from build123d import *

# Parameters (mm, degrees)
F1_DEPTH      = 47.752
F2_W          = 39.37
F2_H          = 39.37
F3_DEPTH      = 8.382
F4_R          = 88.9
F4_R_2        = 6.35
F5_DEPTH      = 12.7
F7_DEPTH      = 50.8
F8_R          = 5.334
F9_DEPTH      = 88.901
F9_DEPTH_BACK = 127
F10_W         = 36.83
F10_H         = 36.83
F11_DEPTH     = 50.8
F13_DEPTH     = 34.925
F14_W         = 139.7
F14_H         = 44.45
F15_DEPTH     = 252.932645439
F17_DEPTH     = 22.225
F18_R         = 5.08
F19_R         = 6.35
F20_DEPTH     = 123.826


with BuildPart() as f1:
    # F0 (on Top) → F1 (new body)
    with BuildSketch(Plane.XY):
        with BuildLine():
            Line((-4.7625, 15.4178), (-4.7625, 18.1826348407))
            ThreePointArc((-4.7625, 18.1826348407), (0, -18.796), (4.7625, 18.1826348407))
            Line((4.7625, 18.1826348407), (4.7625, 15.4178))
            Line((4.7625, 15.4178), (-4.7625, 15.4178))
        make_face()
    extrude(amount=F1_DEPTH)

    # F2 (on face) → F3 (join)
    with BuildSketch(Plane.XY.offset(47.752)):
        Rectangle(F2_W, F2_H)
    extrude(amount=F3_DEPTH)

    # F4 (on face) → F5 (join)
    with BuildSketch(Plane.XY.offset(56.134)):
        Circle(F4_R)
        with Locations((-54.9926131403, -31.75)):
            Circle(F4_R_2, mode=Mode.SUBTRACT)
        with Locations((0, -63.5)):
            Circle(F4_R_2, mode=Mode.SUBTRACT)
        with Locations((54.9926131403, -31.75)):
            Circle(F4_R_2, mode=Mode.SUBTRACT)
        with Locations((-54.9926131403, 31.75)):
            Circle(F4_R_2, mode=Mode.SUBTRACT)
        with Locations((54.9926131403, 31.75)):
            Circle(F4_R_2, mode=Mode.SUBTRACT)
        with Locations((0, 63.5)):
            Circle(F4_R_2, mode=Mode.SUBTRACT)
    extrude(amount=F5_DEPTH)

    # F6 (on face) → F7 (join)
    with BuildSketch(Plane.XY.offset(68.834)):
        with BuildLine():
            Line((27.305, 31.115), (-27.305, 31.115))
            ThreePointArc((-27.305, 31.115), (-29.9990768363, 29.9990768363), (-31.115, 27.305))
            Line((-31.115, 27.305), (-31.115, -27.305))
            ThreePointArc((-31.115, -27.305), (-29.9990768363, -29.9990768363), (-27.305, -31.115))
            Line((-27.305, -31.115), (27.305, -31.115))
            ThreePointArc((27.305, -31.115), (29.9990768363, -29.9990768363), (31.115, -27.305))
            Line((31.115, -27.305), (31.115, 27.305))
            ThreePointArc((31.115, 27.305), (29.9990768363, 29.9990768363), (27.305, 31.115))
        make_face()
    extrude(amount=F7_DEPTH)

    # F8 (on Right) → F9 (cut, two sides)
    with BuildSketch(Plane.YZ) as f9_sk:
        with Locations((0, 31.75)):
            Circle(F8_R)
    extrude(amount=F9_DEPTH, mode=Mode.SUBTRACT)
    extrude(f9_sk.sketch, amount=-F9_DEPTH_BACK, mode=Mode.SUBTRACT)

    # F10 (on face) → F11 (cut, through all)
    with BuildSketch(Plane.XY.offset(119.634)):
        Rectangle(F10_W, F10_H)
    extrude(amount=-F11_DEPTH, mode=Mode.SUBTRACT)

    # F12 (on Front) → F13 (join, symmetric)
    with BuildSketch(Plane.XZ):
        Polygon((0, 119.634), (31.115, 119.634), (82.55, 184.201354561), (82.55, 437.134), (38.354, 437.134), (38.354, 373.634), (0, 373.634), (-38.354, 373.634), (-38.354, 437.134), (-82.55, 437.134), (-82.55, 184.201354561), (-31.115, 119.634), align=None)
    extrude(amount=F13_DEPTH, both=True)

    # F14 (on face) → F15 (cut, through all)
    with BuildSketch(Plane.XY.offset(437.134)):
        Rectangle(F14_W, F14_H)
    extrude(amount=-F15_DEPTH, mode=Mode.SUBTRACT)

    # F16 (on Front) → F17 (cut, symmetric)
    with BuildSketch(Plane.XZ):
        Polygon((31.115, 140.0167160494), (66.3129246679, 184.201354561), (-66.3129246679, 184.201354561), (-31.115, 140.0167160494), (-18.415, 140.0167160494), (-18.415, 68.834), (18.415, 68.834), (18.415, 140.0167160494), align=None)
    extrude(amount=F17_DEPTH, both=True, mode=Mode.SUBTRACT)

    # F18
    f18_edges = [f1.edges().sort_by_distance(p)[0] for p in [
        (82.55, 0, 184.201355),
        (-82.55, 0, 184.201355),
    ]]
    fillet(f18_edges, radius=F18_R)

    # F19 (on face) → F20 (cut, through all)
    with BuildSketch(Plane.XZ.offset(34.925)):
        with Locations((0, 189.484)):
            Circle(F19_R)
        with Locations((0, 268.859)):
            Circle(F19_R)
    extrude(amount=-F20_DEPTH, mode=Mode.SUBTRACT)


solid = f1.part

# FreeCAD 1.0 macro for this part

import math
import FreeCAD as App
import Part
import Sketcher

V = App.Vector
Q = App.Units.Quantity


def edges_at(feature, points):
    """Names of the edges that pass closest to the given points."""
    edges = feature.Shape.Edges
    near = lambda p: min(range(len(edges)), key=lambda i: edges[i].distToShape(Part.Vertex(*p))[0])
    return sorted({f"Edge{near(p) + 1}" for p in points})

doc = App.newDocument("Part")
body = doc.addObject("PartDesign::Body", "Body")

sketch1 = body.newObject("Sketcher::SketchObject", "Sketch")
sketch1.AttachmentSupport = (doc.getObject("XY_Plane"), [""])
sketch1.MapMode = "FlatFace"
sketch1.addGeometry(Part.LineSegment(V(-4.8, 15.4, 0), V(-4.8, 18.2, 0)), False)
sketch1.addGeometry(Part.ArcOfCircle(Part.Circle(V(0, 0, 0), V(0, 0, 1), 18.8), math.radians(105), math.radians(435)), False)
sketch1.addGeometry(Part.LineSegment(V(4.8, 18.2, 0), V(4.8, 15.4, 0)), False)
sketch1.addGeometry(Part.LineSegment(V(4.8, 15.4, 0), V(-4.8, 15.4, 0)), False)
sketch1.addConstraint(Sketcher.Constraint("Coincident", 0, 2, 1, 1))
sketch1.addConstraint(Sketcher.Constraint("Coincident", 1, 2, 2, 1))
sketch1.addConstraint(Sketcher.Constraint("Coincident", 2, 2, 3, 1))
sketch1.addConstraint(Sketcher.Constraint("Coincident", 3, 2, 0, 1))
sketch1.addConstraint(Sketcher.Constraint("Vertical", 0))
sketch1.addConstraint(Sketcher.Constraint("Vertical", 2))
sketch1.addConstraint(Sketcher.Constraint("Horizontal", 3))
sketch1.addConstraint(Sketcher.Constraint("Coincident", 1, 3, -1, 1))
sketch1.addConstraint(Sketcher.Constraint("Horizontal", 0, 2, 1, 2))
sketch1.addConstraint(Sketcher.Constraint("Radius", 1, Q("0.74 in")))
sketch1.addConstraint(Sketcher.Constraint("DistanceX", 3, 2, 3, 1, Q("0.375 in")))
sketch1.addConstraint(Sketcher.Constraint("DistanceY", -1, 1, 2, 2, Q("0.607 in")))
pad1 = body.newObject("PartDesign::Pad", "Pad")
pad1.Profile = sketch1
pad1.Length = Q("1.88 in")

sketch2 = body.newObject("Sketcher::SketchObject", "Sketch001")
sketch2.AttachmentSupport = (doc.getObject("XY_Plane"), [""])
sketch2.MapMode = "FlatFace"
sketch2.AttachmentOffset = App.Placement(V(0, 0, 1.88 * 25.4), App.Rotation())
sketch2.addGeometry(Part.LineSegment(V(-20, 20, 0), V(-20, -20, 0)), False)
sketch2.addGeometry(Part.LineSegment(V(-20, -20, 0), V(20, -20, 0)), False)
sketch2.addGeometry(Part.LineSegment(V(20, -20, 0), V(20, 20, 0)), False)
sketch2.addGeometry(Part.LineSegment(V(20, 20, 0), V(-20, 20, 0)), False)
sketch2.addConstraint(Sketcher.Constraint("Coincident", 0, 2, 1, 1))
sketch2.addConstraint(Sketcher.Constraint("Coincident", 1, 2, 2, 1))
sketch2.addConstraint(Sketcher.Constraint("Coincident", 2, 2, 3, 1))
sketch2.addConstraint(Sketcher.Constraint("Coincident", 3, 2, 0, 1))
sketch2.addConstraint(Sketcher.Constraint("Vertical", 0))
sketch2.addConstraint(Sketcher.Constraint("Horizontal", 1))
sketch2.addConstraint(Sketcher.Constraint("Vertical", 2))
sketch2.addConstraint(Sketcher.Constraint("Horizontal", 3))
sketch2.addConstraint(Sketcher.Constraint("Symmetric", 0, 2, 2, 2, -1, 1))
sketch2.addConstraint(Sketcher.Constraint("Equal", 3, 0))
sketch2.addConstraint(Sketcher.Constraint("DistanceX", 1, 1, 1, 2, Q("1.55 in")))
pad2 = body.newObject("PartDesign::Pad", "Pad001")
pad2.Profile = sketch2
pad2.Length = Q("0.33 in")

sketch3 = body.newObject("Sketcher::SketchObject", "Sketch002")
sketch3.AttachmentSupport = (doc.getObject("XY_Plane"), [""])
sketch3.MapMode = "FlatFace"
sketch3.AttachmentOffset = App.Placement(V(0, 0, 2.21 * 25.4), App.Rotation())
sketch3.addGeometry(Part.Circle(V(0, 0, 0), V(0, 0, 1), 89), False)
sketch3.addGeometry(Part.Circle(V(-55, -32, 0), V(0, 0, 1), 6), False)
sketch3.addGeometry(Part.Circle(V(0, -64, 0), V(0, 0, 1), 6), False)
sketch3.addGeometry(Part.Circle(V(55, -32, 0), V(0, 0, 1), 6), False)
sketch3.addGeometry(Part.Circle(V(-55, 32, 0), V(0, 0, 1), 6), False)
sketch3.addGeometry(Part.Circle(V(55, 32, 0), V(0, 0, 1), 6), False)
sketch3.addGeometry(Part.Circle(V(0, 64, 0), V(0, 0, 1), 6), False)
sketch3.addConstraint(Sketcher.Constraint("Coincident", 0, 3, -1, 1))
sketch3.addConstraint(Sketcher.Constraint("Equal", 1, 2))
sketch3.addConstraint(Sketcher.Constraint("Equal", 2, 3))
sketch3.addConstraint(Sketcher.Constraint("Equal", 3, 4))
sketch3.addConstraint(Sketcher.Constraint("Equal", 4, 5))
sketch3.addConstraint(Sketcher.Constraint("Equal", 5, 6))
sketch3.addConstraint(Sketcher.Constraint("Symmetric", 3, 3, 4, 3, -1, 1))
sketch3.addConstraint(Sketcher.Constraint("Symmetric", 1, 3, 5, 3, -1, 1))
sketch3.addConstraint(Sketcher.Constraint("Symmetric", 2, 3, 6, 3, -1, 1))
sketch3.addConstraint(Sketcher.Constraint("Symmetric", 1, 3, 3, 3, -2))
sketch3.addConstraint(Sketcher.Constraint("PointOnObject", 2, 3, -2))
sketch3.addConstraint(Sketcher.Constraint("Diameter", 0, Q("7 in")))
sketch3.addConstraint(Sketcher.Constraint("Diameter", 1, Q("0.5 in")))
sketch3.addConstraint(Sketcher.Constraint("DistanceY", 2, 3, -1, 1, Q("2.5 in")))
sketch3.addConstraint(Sketcher.Constraint("DistanceY", 1, 3, 4, 3, Q("2.5 in")))
sketch3.addConstraint(Sketcher.Constraint("DistanceX", 1, 3, -1, 1, 54.992613))
pad3 = body.newObject("PartDesign::Pad", "Pad002")
pad3.Profile = sketch3
pad3.Length = Q("0.5 in")

sketch4 = body.newObject("Sketcher::SketchObject", "Sketch003")
sketch4.AttachmentSupport = (doc.getObject("XY_Plane"), [""])
sketch4.MapMode = "FlatFace"
sketch4.AttachmentOffset = App.Placement(V(0, 0, 2.71 * 25.4), App.Rotation())
sketch4.addGeometry(Part.LineSegment(V(27.3, 31.1, 0), V(-27.3, 31.1, 0)), False)
sketch4.addGeometry(Part.ArcOfCircle(Part.Circle(V(-27.3, 27.3, 0), V(0, 0, 1), 3.8), math.radians(90), math.radians(180)), False)
sketch4.addGeometry(Part.LineSegment(V(-31.1, 27.3, 0), V(-31.1, -27.3, 0)), False)
sketch4.addGeometry(Part.ArcOfCircle(Part.Circle(V(-27.3, -27.3, 0), V(0, 0, 1), 3.8), math.radians(180), math.radians(270)), False)
sketch4.addGeometry(Part.LineSegment(V(-27.3, -31.1, 0), V(27.3, -31.1, 0)), False)
sketch4.addGeometry(Part.ArcOfCircle(Part.Circle(V(27.3, -27.3, 0), V(0, 0, 1), 3.8), math.radians(-90), math.radians(0)), False)
sketch4.addGeometry(Part.LineSegment(V(31.1, -27.3, 0), V(31.1, 27.3, 0)), False)
sketch4.addGeometry(Part.ArcOfCircle(Part.Circle(V(27.3, 27.3, 0), V(0, 0, 1), 3.8), math.radians(0), math.radians(90)), False)
sketch4.addConstraint(Sketcher.Constraint("Tangent", 0, 2, 1, 1))
sketch4.addConstraint(Sketcher.Constraint("Tangent", 1, 2, 2, 1))
sketch4.addConstraint(Sketcher.Constraint("Tangent", 2, 2, 3, 1))
sketch4.addConstraint(Sketcher.Constraint("Tangent", 3, 2, 4, 1))
sketch4.addConstraint(Sketcher.Constraint("Tangent", 4, 2, 5, 1))
sketch4.addConstraint(Sketcher.Constraint("Tangent", 5, 2, 6, 1))
sketch4.addConstraint(Sketcher.Constraint("Tangent", 6, 2, 7, 1))
sketch4.addConstraint(Sketcher.Constraint("Tangent", 7, 2, 0, 1))
sketch4.addConstraint(Sketcher.Constraint("Horizontal", 0))
sketch4.addConstraint(Sketcher.Constraint("Vertical", 2))
sketch4.addConstraint(Sketcher.Constraint("Horizontal", 4))
sketch4.addConstraint(Sketcher.Constraint("Vertical", 6))
sketch4.addConstraint(Sketcher.Constraint("Equal", 1, 3))
sketch4.addConstraint(Sketcher.Constraint("Equal", 3, 5))
sketch4.addConstraint(Sketcher.Constraint("Equal", 5, 7))
sketch4.addConstraint(Sketcher.Constraint("Symmetric", 1, 3, 5, 3, -1, 1))
sketch4.addConstraint(Sketcher.Constraint("Equal", 4, 2))
sketch4.addConstraint(Sketcher.Constraint("Radius", 1, Q("0.15 in")))
sketch4.addConstraint(Sketcher.Constraint("DistanceX", 0, 2, 0, 1, Q("2.15 in")))
pad4 = body.newObject("PartDesign::Pad", "Pad003")
pad4.Profile = sketch4
pad4.Length = Q("2 in")

sketch5 = body.newObject("Sketcher::SketchObject", "Sketch004")
sketch5.AttachmentSupport = (doc.getObject("YZ_Plane"), [""])
sketch5.MapMode = "FlatFace"
sketch5.addGeometry(Part.Circle(V(0, 32, 0), V(0, 0, 1), 5), False)
sketch5.addConstraint(Sketcher.Constraint("PointOnObject", 0, 3, -2))
sketch5.addConstraint(Sketcher.Constraint("Diameter", 0, Q("0.42 in")))
sketch5.addConstraint(Sketcher.Constraint("DistanceY", -1, 1, 0, 3, Q("1.25 in")))
pocket1 = body.newObject("PartDesign::Pocket", "Pocket")
pocket1.Profile = sketch5
pocket1.Type = "ThroughAll"
pocket1.Midplane = True

sketch6 = body.newObject("Sketcher::SketchObject", "Sketch005")
sketch6.AttachmentSupport = (doc.getObject("XY_Plane"), [""])
sketch6.MapMode = "FlatFace"
sketch6.AttachmentOffset = App.Placement(V(0, 0, 4.71 * 25.4), App.Rotation())
sketch6.addGeometry(Part.LineSegment(V(-18, 18, 0), V(-18, -18, 0)), False)
sketch6.addGeometry(Part.LineSegment(V(-18, -18, 0), V(18, -18, 0)), False)
sketch6.addGeometry(Part.LineSegment(V(18, -18, 0), V(18, 18, 0)), False)
sketch6.addGeometry(Part.LineSegment(V(18, 18, 0), V(-18, 18, 0)), False)
sketch6.addConstraint(Sketcher.Constraint("Coincident", 0, 2, 1, 1))
sketch6.addConstraint(Sketcher.Constraint("Coincident", 1, 2, 2, 1))
sketch6.addConstraint(Sketcher.Constraint("Coincident", 2, 2, 3, 1))
sketch6.addConstraint(Sketcher.Constraint("Coincident", 3, 2, 0, 1))
sketch6.addConstraint(Sketcher.Constraint("Vertical", 0))
sketch6.addConstraint(Sketcher.Constraint("Horizontal", 1))
sketch6.addConstraint(Sketcher.Constraint("Vertical", 2))
sketch6.addConstraint(Sketcher.Constraint("Horizontal", 3))
sketch6.addConstraint(Sketcher.Constraint("Symmetric", 0, 2, 2, 2, -1, 1))
sketch6.addConstraint(Sketcher.Constraint("Equal", 3, 0))
sketch6.addConstraint(Sketcher.Constraint("DistanceX", 1, 1, 1, 2, Q("1.45 in")))
pocket2 = body.newObject("PartDesign::Pocket", "Pocket001")
pocket2.Profile = sketch6
pocket2.Length = Q("2 in")

sketch7 = body.newObject("Sketcher::SketchObject", "Sketch006")
sketch7.AttachmentSupport = (doc.getObject("XZ_Plane"), [""])
sketch7.MapMode = "FlatFace"
sketch7.addGeometry(Part.LineSegment(V(31, 120, 0), V(83, 184, 0)), False)
sketch7.addGeometry(Part.LineSegment(V(83, 184, 0), V(83, 437, 0)), False)
sketch7.addGeometry(Part.LineSegment(V(83, 437, 0), V(38, 437, 0)), False)
sketch7.addGeometry(Part.LineSegment(V(38, 437, 0), V(38, 374, 0)), False)
sketch7.addGeometry(Part.LineSegment(V(38, 374, 0), V(-38, 374, 0)), False)
sketch7.addGeometry(Part.LineSegment(V(-38, 374, 0), V(-38, 437, 0)), False)
sketch7.addGeometry(Part.LineSegment(V(-38, 437, 0), V(-83, 437, 0)), False)
sketch7.addGeometry(Part.LineSegment(V(-83, 437, 0), V(-83, 184, 0)), False)
sketch7.addGeometry(Part.LineSegment(V(-83, 184, 0), V(-31, 120, 0)), False)
sketch7.addGeometry(Part.LineSegment(V(-31, 120, 0), V(31, 120, 0)), False)
sketch7.addConstraint(Sketcher.Constraint("Coincident", 0, 2, 1, 1))
sketch7.addConstraint(Sketcher.Constraint("Coincident", 1, 2, 2, 1))
sketch7.addConstraint(Sketcher.Constraint("Coincident", 2, 2, 3, 1))
sketch7.addConstraint(Sketcher.Constraint("Coincident", 3, 2, 4, 1))
sketch7.addConstraint(Sketcher.Constraint("Coincident", 4, 2, 5, 1))
sketch7.addConstraint(Sketcher.Constraint("Coincident", 5, 2, 6, 1))
sketch7.addConstraint(Sketcher.Constraint("Coincident", 6, 2, 7, 1))
sketch7.addConstraint(Sketcher.Constraint("Coincident", 7, 2, 8, 1))
sketch7.addConstraint(Sketcher.Constraint("Coincident", 8, 2, 9, 1))
sketch7.addConstraint(Sketcher.Constraint("Coincident", 9, 2, 0, 1))
sketch7.addConstraint(Sketcher.Constraint("Vertical", 1))
sketch7.addConstraint(Sketcher.Constraint("Horizontal", 2))
sketch7.addConstraint(Sketcher.Constraint("Vertical", 3))
sketch7.addConstraint(Sketcher.Constraint("Horizontal", 4))
sketch7.addConstraint(Sketcher.Constraint("Vertical", 5))
sketch7.addConstraint(Sketcher.Constraint("Horizontal", 6))
sketch7.addConstraint(Sketcher.Constraint("Vertical", 7))
sketch7.addConstraint(Sketcher.Constraint("Horizontal", 9))
sketch7.addConstraint(Sketcher.Constraint("Symmetric", 2, 2, 5, 2, -2))
sketch7.addConstraint(Sketcher.Constraint("Symmetric", 0, 2, 7, 2, -2))
sketch7.addConstraint(Sketcher.Constraint("Equal", 0, 8))
sketch7.addConstraint(Sketcher.Constraint("DistanceY", 3, 2, 3, 1, Q("2.5 in")))
sketch7.addConstraint(Sketcher.Constraint("DistanceY", 8, 2, 4, 2, Q("10 in")))
sketch7.addConstraint(Sketcher.Constraint("DistanceX", 2, 2, 2, 1, Q("1.74 in")))
sketch7.addConstraint(Sketcher.Constraint("DistanceX", 4, 2, 4, 1, Q("3.02 in")))
sketch7.addConstraint(Sketcher.Constraint("DistanceX", 9, 1, 9, 2, Q("2.45 in")))
sketch7.addConstraint(Sketcher.Constraint("Distance", 0, Q("3.25 in")))
sketch7.addConstraint(Sketcher.Constraint("DistanceY", -1, 1, 1, 2, Q("17.21 in")))
pad5 = body.newObject("PartDesign::Pad", "Pad004")
pad5.Profile = sketch7
pad5.Length = Q("2.75 in")
pad5.Midplane = True

sketch8 = body.newObject("Sketcher::SketchObject", "Sketch007")
sketch8.AttachmentSupport = (doc.getObject("XY_Plane"), [""])
sketch8.MapMode = "FlatFace"
sketch8.AttachmentOffset = App.Placement(V(0, 0, 17.21 * 25.4), App.Rotation())
sketch8.addGeometry(Part.LineSegment(V(-70, 22, 0), V(-70, -22, 0)), False)
sketch8.addGeometry(Part.LineSegment(V(-70, -22, 0), V(70, -22, 0)), False)
sketch8.addGeometry(Part.LineSegment(V(70, -22, 0), V(70, 22, 0)), False)
sketch8.addGeometry(Part.LineSegment(V(70, 22, 0), V(-70, 22, 0)), False)
sketch8.addConstraint(Sketcher.Constraint("Coincident", 0, 2, 1, 1))
sketch8.addConstraint(Sketcher.Constraint("Coincident", 1, 2, 2, 1))
sketch8.addConstraint(Sketcher.Constraint("Coincident", 2, 2, 3, 1))
sketch8.addConstraint(Sketcher.Constraint("Coincident", 3, 2, 0, 1))
sketch8.addConstraint(Sketcher.Constraint("Vertical", 0))
sketch8.addConstraint(Sketcher.Constraint("Horizontal", 1))
sketch8.addConstraint(Sketcher.Constraint("Vertical", 2))
sketch8.addConstraint(Sketcher.Constraint("Horizontal", 3))
sketch8.addConstraint(Sketcher.Constraint("Symmetric", 0, 2, 2, 2, -1, 1))
sketch8.addConstraint(Sketcher.Constraint("DistanceX", 1, 1, 1, 2, Q("5.5 in")))
sketch8.addConstraint(Sketcher.Constraint("DistanceY", 0, 2, 0, 1, Q("1.75 in")))
pocket3 = body.newObject("PartDesign::Pocket", "Pocket002")
pocket3.Profile = sketch8
pocket3.Length = 252.932645

sketch9 = body.newObject("Sketcher::SketchObject", "Sketch008")
sketch9.AttachmentSupport = (doc.getObject("XZ_Plane"), [""])
sketch9.MapMode = "FlatFace"
sketch9.addGeometry(Part.LineSegment(V(31, 140, 0), V(66, 184, 0)), False)
sketch9.addGeometry(Part.LineSegment(V(66, 184, 0), V(-66, 184, 0)), False)
sketch9.addGeometry(Part.LineSegment(V(-66, 184, 0), V(-31, 140, 0)), False)
sketch9.addGeometry(Part.LineSegment(V(-31, 140, 0), V(-18, 140, 0)), False)
sketch9.addGeometry(Part.LineSegment(V(-18, 140, 0), V(-18, 69, 0)), False)
sketch9.addGeometry(Part.LineSegment(V(-18, 69, 0), V(18, 69, 0)), False)
sketch9.addGeometry(Part.LineSegment(V(18, 69, 0), V(18, 140, 0)), False)
sketch9.addGeometry(Part.LineSegment(V(18, 140, 0), V(31, 140, 0)), False)
sketch9.addConstraint(Sketcher.Constraint("Coincident", 0, 2, 1, 1))
sketch9.addConstraint(Sketcher.Constraint("Coincident", 1, 2, 2, 1))
sketch9.addConstraint(Sketcher.Constraint("Coincident", 2, 2, 3, 1))
sketch9.addConstraint(Sketcher.Constraint("Coincident", 3, 2, 4, 1))
sketch9.addConstraint(Sketcher.Constraint("Coincident", 4, 2, 5, 1))
sketch9.addConstraint(Sketcher.Constraint("Coincident", 5, 2, 6, 1))
sketch9.addConstraint(Sketcher.Constraint("Coincident", 6, 2, 7, 1))
sketch9.addConstraint(Sketcher.Constraint("Coincident", 7, 2, 0, 1))
sketch9.addConstraint(Sketcher.Constraint("Horizontal", 1))
sketch9.addConstraint(Sketcher.Constraint("Horizontal", 3))
sketch9.addConstraint(Sketcher.Constraint("Vertical", 4))
sketch9.addConstraint(Sketcher.Constraint("Horizontal", 5))
sketch9.addConstraint(Sketcher.Constraint("Vertical", 6))
sketch9.addConstraint(Sketcher.Constraint("Horizontal", 7))
sketch9.addConstraint(Sketcher.Constraint("Symmetric", 3, 2, 6, 2, -2))
sketch9.addConstraint(Sketcher.Constraint("Equal", 3, 7))
sketch9.addConstraint(Sketcher.Constraint("Equal", 0, 2))
sketch9.addConstraint(Sketcher.Constraint("DistanceX", 3, 1, 3, 2, Q("0.5 in")))
sketch9.addConstraint(Sketcher.Constraint("DistanceX", 5, 1, 5, 2, Q("1.45 in")))
sketch9.addConstraint(Sketcher.Constraint("DistanceY", -1, 1, 4, 2, Q("2.71 in")))
sketch9.addConstraint(Sketcher.Constraint("DistanceX", 1, 2, 1, 1, 132.625849))
sketch9.addConstraint(Sketcher.Constraint("DistanceY", 4, 2, 4, 1, 71.182716))
sketch9.addConstraint(Sketcher.Constraint("DistanceY", 2, 2, 1, 2, 44.184639))
pocket4 = body.newObject("PartDesign::Pocket", "Pocket003")
pocket4.Profile = sketch9
pocket4.Length = Q("1.75 in")
pocket4.Midplane = True
doc.recompute()

fillet = body.newObject("PartDesign::Fillet", "Fillet")
fillet.Base = (pocket4, edges_at(pocket4, [(82.55, 0, 184.201), (-82.55, 0, 184.201)]))
fillet.Radius = Q("0.2 in")

sketch10 = body.newObject("Sketcher::SketchObject", "Sketch009")
sketch10.AttachmentSupport = (doc.getObject("XZ_Plane"), [""])
sketch10.MapMode = "FlatFace"
sketch10.AttachmentOffset = App.Placement(V(0, 0, 1.375 * 25.4), App.Rotation())
sketch10.addGeometry(Part.Circle(V(0, 189, 0), V(0, 0, 1), 6), False)
sketch10.addGeometry(Part.Circle(V(0, 269, 0), V(0, 0, 1), 6), False)
sketch10.addConstraint(Sketcher.Constraint("Equal", 0, 1))
sketch10.addConstraint(Sketcher.Constraint("PointOnObject", 0, 3, -2))
sketch10.addConstraint(Sketcher.Constraint("PointOnObject", 1, 3, -2))
sketch10.addConstraint(Sketcher.Constraint("Diameter", 0, Q("0.5 in")))
sketch10.addConstraint(Sketcher.Constraint("DistanceY", -1, 1, 0, 3, Q("7.46 in")))
sketch10.addConstraint(Sketcher.Constraint("DistanceY", -1, 1, 1, 3, Q("10.585 in")))
pocket5 = body.newObject("PartDesign::Pocket", "Pocket004")
pocket5.Profile = sketch10
pocket5.Type = "ThroughAll"

doc.recompute()
